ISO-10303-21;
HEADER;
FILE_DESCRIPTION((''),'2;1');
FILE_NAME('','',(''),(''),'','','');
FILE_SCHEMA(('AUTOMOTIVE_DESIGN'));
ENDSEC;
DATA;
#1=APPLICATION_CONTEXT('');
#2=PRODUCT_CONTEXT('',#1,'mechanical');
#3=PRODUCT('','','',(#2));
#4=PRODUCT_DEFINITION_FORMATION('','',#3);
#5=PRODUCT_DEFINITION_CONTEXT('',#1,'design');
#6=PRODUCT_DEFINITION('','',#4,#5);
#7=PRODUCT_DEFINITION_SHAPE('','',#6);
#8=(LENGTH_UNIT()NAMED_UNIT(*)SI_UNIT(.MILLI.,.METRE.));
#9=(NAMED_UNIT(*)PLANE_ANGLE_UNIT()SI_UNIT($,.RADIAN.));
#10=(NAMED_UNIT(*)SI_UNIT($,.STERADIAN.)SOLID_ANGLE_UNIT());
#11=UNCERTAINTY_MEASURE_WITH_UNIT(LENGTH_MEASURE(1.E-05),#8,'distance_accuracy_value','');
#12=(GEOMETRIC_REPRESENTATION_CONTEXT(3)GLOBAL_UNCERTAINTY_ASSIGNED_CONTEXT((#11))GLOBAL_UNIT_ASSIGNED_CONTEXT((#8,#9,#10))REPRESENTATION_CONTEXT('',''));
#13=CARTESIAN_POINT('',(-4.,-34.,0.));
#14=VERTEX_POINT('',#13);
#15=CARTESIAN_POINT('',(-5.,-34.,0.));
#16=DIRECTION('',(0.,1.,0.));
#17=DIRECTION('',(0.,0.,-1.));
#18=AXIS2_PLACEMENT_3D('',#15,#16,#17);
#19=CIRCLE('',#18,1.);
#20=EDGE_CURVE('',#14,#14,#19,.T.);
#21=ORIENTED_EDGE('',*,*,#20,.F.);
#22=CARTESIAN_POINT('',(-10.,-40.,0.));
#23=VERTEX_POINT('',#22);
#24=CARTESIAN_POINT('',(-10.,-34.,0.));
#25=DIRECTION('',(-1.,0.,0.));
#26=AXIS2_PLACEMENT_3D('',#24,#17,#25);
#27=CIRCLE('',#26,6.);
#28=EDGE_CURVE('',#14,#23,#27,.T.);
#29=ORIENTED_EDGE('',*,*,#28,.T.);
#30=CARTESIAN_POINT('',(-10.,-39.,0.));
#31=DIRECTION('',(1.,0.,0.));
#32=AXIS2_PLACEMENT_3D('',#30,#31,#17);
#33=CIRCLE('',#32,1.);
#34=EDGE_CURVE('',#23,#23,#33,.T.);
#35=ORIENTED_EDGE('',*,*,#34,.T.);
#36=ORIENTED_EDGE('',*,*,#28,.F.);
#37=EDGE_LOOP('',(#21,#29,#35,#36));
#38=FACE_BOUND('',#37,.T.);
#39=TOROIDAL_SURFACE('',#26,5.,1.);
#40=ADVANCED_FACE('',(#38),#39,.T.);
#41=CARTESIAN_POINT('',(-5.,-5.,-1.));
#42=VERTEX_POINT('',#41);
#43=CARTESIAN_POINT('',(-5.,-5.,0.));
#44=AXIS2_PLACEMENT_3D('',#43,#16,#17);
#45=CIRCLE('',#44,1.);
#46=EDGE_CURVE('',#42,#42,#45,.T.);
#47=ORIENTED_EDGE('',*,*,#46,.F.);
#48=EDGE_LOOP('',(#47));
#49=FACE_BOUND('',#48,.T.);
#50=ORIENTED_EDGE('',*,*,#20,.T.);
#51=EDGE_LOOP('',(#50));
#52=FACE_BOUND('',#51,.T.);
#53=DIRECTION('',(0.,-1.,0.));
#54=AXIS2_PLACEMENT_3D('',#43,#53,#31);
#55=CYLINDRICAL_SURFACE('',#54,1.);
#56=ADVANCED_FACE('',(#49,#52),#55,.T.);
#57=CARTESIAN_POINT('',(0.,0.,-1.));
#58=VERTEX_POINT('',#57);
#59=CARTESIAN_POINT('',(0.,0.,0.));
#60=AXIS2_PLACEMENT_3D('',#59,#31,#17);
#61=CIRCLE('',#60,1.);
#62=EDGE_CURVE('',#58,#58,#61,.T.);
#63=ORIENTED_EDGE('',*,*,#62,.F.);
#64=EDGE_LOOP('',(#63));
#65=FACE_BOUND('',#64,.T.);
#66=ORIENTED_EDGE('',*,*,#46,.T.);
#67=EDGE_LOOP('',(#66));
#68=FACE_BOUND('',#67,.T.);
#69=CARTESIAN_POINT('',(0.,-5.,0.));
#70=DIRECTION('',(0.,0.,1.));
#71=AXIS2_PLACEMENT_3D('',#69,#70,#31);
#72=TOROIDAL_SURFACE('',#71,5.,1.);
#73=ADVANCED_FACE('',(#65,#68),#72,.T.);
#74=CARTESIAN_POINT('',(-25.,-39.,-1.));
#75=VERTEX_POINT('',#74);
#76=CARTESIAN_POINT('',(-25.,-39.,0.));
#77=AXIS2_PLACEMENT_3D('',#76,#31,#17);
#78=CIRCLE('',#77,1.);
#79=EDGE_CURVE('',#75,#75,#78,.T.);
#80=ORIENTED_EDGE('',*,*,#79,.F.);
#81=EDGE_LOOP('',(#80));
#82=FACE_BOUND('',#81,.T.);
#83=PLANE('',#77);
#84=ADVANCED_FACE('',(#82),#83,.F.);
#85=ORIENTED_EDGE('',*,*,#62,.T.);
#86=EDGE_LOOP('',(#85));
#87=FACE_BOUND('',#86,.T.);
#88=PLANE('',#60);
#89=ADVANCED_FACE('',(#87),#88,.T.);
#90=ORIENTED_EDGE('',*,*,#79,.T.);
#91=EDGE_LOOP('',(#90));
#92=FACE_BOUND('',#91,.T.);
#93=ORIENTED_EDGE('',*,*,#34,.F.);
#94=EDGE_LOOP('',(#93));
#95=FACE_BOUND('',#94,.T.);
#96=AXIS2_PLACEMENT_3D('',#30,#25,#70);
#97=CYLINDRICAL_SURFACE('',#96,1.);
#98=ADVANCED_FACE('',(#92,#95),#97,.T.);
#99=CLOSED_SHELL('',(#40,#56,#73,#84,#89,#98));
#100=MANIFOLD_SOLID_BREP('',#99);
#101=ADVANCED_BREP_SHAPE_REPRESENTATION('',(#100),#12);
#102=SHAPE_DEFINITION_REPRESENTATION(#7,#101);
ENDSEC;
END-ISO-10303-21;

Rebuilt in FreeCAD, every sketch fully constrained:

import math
import FreeCAD as App
import Part
import Sketcher
from FreeCAD import Vector
Q = App.Units.Quantity

doc = App.newDocument("Part")
params = doc.addObject("Spreadsheet::Sheet", "Params")
for row, (alias, value) in enumerate([
    ("sketch1_diameter", "2 mm"),
    ("sketch2_radius", "5 mm"),
    ("sketch2_width", "15 mm"),
    ("sketch2_height", "29 mm"),
], start=1):
    params.set(f"A{row}", alias)
    params.set(f"B{row}", "=" + value)
    params.setAlias(f"B{row}", alias)

body = doc.addObject("PartDesign::Body", "Body")

sketch1 = body.newObject("Sketcher::SketchObject", "Sketch")
sketch1.AttachmentSupport = (doc.getObject("YZ_Plane"), [""])
sketch1.MapMode = "FlatFace"
sketch1.addGeometry(Part.Circle(Vector(0, 0, 0), Vector(0, 0, 1), 1), False)
sketch1.addConstraint([
    Sketcher.Constraint("Coincident", 0, 3, -1, 1),
    Sketcher.Constraint("Diameter", 0, Q("2 mm")),
])
sketch1.setExpression("Constraints[1]", "Params.sketch1_diameter")

sketch2 = body.newObject("Sketcher::SketchObject", "Sketch001")
sketch2.AttachmentSupport = (doc.getObject("XY_Plane"), [""])
sketch2.MapMode = "FlatFace"
sketch2.addGeometry([
    Part.LineSegment(Vector(-25, -39, 0), Vector(-10, -39, 0)),
    Part.ArcOfCircle(Part.Circle(Vector(-10, -34, 0), Vector(0, 0, 1), 5), math.radians(-90), math.radians(0)),
    Part.LineSegment(Vector(-5, -34, 0), Vector(-5, -5, 0)),
    Part.ArcOfCircle(Part.Circle(Vector(0, -5, 0), Vector(0, 0, 1), 5), math.radians(90), math.radians(180)),
], False)
sketch2.addConstraint([
    Sketcher.Constraint("Tangent", 0, 2, 1, 1),
    Sketcher.Constraint("Tangent", 1, 2, 2, 1),
    Sketcher.Constraint("Tangent", 2, 2, 3, 2),
    Sketcher.Constraint("Horizontal", 0),
    Sketcher.Constraint("Vertical", 2),
    Sketcher.Constraint("Coincident", 3, 1, -1, 1),
    Sketcher.Constraint("Equal", 1, 3),
    Sketcher.Constraint("PointOnObject", 3, 3, -2),
    Sketcher.Constraint("Radius", 1, Q("5 mm")),
    Sketcher.Constraint("DistanceX", 0, 1, 0, 2, Q("15 mm")),
    Sketcher.Constraint("DistanceY", 2, 1, 2, 2, Q("29 mm")),
])
sketch2.setExpression("Constraints[8]", "Params.sketch2_radius")
sketch2.setExpression("Constraints[9]", "Params.sketch2_width")
sketch2.setExpression("Constraints[10]", "Params.sketch2_height")
doc.recompute()

additivepipe = body.newObject("PartDesign::AdditivePipe", "AdditivePipe")
additivepipe.Profile = sketch1
additivepipe.Spine = (sketch2, ["Edge1", "Edge2", "Edge3", "Edge4"])

doc.recompute()
